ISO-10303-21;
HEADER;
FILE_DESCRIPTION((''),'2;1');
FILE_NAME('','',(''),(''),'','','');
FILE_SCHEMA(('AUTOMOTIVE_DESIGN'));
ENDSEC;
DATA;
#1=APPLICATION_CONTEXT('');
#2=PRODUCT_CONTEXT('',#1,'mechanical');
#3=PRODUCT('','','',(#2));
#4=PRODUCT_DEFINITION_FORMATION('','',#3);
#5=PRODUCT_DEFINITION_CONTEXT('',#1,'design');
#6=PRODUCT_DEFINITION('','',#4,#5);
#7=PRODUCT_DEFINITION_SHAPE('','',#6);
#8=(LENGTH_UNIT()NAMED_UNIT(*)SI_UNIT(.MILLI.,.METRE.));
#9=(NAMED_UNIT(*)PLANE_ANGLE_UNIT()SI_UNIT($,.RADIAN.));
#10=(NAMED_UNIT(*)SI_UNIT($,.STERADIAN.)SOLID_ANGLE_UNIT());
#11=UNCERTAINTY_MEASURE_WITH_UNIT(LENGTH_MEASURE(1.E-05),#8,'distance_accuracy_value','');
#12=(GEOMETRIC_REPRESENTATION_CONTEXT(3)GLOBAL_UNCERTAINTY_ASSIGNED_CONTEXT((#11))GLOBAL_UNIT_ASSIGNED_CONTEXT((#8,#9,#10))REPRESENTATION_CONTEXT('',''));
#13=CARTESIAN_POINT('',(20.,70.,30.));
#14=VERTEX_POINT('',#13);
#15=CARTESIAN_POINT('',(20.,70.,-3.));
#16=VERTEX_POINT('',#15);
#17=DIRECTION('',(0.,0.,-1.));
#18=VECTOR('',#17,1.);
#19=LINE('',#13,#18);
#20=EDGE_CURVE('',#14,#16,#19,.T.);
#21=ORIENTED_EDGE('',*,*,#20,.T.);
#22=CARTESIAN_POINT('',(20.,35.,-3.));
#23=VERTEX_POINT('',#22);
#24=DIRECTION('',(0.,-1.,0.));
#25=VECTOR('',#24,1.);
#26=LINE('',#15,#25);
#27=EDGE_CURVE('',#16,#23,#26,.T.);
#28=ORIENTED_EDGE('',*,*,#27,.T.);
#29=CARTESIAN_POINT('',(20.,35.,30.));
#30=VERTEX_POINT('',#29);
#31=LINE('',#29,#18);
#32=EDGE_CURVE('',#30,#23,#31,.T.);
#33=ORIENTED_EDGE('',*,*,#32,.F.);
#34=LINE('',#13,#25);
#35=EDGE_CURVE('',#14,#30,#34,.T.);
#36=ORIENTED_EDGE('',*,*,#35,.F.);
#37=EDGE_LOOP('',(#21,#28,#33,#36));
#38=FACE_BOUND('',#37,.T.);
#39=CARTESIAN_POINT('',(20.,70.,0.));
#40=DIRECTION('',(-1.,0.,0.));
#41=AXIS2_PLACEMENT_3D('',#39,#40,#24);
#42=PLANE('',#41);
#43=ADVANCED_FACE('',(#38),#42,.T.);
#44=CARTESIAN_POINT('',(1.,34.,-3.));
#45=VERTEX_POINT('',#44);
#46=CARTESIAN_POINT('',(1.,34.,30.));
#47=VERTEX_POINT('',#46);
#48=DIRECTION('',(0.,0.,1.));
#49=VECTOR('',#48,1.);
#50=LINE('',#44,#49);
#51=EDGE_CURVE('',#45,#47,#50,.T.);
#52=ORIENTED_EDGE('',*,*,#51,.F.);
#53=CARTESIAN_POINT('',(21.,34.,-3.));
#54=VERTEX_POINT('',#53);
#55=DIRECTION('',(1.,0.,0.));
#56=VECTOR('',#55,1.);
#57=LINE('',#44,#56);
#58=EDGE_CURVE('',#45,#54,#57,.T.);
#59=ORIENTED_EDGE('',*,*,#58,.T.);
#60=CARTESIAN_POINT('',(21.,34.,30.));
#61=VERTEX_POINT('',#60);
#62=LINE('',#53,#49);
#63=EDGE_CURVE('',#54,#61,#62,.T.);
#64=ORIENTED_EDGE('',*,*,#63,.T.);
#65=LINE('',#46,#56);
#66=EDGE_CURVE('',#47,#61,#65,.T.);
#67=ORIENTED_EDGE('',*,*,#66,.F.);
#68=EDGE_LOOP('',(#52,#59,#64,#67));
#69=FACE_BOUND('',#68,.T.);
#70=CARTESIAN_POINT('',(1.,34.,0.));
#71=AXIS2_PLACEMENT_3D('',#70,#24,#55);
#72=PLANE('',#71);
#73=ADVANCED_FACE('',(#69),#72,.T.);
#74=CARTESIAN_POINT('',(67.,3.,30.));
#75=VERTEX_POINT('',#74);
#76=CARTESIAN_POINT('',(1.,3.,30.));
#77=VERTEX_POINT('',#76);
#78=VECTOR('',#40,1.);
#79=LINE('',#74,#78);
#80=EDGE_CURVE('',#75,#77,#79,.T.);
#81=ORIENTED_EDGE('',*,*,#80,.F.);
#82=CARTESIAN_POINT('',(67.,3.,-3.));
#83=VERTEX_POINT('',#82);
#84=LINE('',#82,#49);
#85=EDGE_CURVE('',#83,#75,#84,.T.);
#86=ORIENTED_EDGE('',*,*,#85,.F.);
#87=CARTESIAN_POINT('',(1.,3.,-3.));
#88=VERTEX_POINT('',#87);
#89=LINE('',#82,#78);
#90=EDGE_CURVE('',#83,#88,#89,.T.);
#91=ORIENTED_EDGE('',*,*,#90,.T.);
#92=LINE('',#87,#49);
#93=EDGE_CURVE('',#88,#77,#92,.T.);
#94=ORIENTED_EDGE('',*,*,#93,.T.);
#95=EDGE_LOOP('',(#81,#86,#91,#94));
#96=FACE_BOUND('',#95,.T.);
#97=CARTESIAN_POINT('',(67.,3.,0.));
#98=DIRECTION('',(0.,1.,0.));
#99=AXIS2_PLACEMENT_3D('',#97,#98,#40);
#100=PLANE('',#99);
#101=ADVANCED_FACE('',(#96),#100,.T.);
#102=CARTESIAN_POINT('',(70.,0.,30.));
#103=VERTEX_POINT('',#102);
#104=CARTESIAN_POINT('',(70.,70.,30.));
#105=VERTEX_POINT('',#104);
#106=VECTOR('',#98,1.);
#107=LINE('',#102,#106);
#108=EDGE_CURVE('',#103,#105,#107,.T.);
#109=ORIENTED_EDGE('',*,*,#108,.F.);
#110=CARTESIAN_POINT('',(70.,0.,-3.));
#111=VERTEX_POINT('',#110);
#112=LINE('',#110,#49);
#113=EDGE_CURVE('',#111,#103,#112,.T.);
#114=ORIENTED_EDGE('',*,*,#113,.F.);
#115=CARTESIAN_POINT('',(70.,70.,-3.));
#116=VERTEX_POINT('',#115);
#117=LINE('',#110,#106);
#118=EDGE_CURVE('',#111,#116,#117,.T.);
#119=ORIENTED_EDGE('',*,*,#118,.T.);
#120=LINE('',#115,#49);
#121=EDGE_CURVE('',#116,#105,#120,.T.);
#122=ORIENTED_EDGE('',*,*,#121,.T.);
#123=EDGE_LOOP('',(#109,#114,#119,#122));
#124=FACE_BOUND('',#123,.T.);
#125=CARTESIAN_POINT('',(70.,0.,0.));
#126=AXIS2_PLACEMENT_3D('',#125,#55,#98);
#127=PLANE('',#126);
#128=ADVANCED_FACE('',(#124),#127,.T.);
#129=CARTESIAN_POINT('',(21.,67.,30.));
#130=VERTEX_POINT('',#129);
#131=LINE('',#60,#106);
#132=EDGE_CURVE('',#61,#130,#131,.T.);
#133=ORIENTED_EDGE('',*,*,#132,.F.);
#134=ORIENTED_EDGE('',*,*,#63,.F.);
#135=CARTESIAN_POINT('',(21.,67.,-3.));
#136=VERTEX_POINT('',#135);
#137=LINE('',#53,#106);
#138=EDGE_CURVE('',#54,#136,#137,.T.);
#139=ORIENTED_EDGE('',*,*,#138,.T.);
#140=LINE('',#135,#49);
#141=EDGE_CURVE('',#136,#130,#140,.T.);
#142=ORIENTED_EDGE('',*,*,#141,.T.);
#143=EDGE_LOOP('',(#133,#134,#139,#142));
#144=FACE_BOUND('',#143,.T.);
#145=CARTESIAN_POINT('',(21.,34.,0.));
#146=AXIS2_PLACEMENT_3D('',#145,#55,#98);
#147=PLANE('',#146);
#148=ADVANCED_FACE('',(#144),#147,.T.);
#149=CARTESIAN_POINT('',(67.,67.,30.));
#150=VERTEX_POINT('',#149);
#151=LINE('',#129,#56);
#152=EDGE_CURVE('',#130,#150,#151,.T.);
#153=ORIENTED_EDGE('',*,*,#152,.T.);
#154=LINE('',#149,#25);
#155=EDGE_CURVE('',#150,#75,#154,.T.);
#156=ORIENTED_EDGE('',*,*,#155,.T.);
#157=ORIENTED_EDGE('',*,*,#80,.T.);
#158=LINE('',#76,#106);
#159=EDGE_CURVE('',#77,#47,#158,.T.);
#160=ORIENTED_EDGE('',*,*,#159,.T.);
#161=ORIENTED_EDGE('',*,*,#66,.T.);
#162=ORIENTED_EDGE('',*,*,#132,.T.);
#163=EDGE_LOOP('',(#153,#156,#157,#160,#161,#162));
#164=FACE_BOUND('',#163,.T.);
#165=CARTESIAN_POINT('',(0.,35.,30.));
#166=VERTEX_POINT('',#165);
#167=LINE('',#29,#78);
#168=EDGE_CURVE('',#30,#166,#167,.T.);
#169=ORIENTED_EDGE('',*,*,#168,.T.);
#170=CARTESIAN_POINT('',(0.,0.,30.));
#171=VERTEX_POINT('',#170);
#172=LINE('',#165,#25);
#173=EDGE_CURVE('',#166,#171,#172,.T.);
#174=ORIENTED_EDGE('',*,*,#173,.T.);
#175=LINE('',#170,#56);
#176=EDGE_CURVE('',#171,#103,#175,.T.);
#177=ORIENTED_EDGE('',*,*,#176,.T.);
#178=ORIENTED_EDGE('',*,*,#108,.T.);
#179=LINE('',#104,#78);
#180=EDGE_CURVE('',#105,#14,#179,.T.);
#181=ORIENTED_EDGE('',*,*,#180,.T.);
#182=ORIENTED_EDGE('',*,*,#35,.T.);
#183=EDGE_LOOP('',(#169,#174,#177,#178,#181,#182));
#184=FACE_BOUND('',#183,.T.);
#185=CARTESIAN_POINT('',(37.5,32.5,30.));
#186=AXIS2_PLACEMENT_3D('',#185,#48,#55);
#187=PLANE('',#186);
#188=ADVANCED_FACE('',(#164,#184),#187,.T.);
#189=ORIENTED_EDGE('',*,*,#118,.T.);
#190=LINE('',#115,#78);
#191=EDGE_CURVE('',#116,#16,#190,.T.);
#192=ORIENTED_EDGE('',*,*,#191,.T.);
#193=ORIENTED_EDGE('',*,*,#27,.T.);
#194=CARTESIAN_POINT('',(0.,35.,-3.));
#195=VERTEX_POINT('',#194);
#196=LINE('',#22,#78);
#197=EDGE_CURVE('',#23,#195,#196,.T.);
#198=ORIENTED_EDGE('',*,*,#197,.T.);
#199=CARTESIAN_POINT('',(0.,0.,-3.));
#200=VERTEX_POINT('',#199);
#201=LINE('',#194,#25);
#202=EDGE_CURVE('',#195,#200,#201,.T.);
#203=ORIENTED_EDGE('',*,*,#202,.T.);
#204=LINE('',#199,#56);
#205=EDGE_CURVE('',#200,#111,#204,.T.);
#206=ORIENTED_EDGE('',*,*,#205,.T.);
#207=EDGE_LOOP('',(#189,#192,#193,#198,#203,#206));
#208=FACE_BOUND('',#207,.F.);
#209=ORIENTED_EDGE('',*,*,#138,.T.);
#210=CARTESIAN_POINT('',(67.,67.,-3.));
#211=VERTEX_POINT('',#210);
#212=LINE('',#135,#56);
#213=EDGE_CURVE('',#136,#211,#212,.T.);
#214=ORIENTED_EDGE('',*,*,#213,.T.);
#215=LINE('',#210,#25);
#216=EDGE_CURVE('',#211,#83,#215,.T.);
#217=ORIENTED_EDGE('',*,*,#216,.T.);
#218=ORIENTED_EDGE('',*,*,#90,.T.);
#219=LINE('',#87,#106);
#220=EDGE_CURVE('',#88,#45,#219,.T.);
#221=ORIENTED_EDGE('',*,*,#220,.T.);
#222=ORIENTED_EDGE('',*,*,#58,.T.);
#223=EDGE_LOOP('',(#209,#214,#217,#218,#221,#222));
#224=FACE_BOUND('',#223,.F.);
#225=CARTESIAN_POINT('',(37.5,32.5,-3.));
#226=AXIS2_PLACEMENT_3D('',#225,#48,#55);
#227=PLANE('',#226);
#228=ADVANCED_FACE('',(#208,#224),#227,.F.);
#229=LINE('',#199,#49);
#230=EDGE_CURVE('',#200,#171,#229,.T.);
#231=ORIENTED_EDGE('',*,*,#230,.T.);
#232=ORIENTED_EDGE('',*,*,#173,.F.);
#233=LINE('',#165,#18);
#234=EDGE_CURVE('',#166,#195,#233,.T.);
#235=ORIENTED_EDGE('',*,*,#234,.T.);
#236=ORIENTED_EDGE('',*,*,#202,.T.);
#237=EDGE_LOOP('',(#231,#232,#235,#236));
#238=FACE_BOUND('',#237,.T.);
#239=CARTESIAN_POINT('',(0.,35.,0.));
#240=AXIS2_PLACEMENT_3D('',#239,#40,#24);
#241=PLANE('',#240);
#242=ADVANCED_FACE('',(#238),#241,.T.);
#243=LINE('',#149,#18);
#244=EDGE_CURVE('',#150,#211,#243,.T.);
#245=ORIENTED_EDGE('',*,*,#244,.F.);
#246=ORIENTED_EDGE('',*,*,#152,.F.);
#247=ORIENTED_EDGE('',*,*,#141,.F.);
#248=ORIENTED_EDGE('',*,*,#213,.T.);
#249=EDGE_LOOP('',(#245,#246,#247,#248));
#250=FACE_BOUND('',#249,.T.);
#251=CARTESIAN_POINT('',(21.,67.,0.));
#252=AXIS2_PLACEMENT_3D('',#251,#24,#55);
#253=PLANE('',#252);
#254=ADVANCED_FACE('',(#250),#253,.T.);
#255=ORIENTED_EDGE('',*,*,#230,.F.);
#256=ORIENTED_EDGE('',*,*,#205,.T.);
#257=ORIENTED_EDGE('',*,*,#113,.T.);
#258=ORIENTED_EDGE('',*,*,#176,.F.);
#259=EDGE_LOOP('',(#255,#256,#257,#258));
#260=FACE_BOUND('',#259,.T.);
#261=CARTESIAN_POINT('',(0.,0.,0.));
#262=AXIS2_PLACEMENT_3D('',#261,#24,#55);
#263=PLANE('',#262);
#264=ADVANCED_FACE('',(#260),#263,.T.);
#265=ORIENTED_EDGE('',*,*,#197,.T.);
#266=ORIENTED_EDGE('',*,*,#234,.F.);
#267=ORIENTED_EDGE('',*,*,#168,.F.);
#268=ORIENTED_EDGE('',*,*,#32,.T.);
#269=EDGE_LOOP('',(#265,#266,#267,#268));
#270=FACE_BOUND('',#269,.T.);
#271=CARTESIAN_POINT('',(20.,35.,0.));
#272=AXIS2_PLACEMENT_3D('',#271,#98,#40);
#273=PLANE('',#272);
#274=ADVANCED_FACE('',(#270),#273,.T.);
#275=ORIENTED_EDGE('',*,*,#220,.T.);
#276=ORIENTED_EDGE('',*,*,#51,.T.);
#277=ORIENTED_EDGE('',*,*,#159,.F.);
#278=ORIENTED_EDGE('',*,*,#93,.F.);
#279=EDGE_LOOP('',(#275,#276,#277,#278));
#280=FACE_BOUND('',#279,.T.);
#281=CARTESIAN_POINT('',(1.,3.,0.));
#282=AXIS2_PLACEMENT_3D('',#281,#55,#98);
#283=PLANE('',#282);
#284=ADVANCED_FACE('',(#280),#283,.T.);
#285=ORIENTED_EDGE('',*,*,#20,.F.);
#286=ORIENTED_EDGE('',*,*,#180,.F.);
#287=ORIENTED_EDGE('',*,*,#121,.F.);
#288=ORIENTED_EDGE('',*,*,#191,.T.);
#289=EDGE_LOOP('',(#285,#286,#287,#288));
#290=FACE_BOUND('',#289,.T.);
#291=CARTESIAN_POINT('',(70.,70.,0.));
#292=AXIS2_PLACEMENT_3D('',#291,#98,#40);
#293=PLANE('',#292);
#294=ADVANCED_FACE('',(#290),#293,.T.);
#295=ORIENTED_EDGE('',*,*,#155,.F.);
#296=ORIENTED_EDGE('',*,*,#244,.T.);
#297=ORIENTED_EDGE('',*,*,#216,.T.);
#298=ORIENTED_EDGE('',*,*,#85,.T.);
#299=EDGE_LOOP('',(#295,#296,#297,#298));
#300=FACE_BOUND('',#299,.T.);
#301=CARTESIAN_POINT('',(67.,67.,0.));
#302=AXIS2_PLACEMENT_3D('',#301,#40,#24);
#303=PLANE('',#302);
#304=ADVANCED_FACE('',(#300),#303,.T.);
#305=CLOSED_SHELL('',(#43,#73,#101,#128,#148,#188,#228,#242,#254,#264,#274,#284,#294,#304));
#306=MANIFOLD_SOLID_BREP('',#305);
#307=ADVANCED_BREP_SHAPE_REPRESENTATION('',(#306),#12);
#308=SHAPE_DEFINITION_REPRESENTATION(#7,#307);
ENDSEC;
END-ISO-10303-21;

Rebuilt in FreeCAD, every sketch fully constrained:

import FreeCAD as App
import Part
import Sketcher

V = App.Vector
Q = App.Units.Quantity


def add_polygon(sketch, points):
    """Adds a closed chain of lines whose ends are joined by coincident constraints."""
    first, n = sketch.GeometryCount, len(points)
    for a, b in zip(points, points[1:] + points[:1]):
        sketch.addGeometry(Part.LineSegment(App.Vector(*a, 0), App.Vector(*b, 0)), False)
    for i in range(n):
        sketch.addConstraint(Sketcher.Constraint("Coincident", first + i, 2, first + (i + 1) % n, 1))

doc = App.newDocument("Part")
body = doc.addObject("PartDesign::Body", "Body")

sketch1 = body.newObject("Sketcher::SketchObject", "Sketch")
sketch1.AttachmentSupport = (doc.getObject("XY_Plane"), [""])
sketch1.MapMode = "FlatFace"
add_polygon(sketch1, [(0, 35), (0, 0), (70, 0), (70, 70), (20, 70), (20, 35)])
add_polygon(sketch1, [(67, 67), (67, 3), (1, 3), (1, 34), (21, 34), (21, 67)])
sketch1.addConstraint([
    Sketcher.Constraint("Vertical", 0),
    Sketcher.Constraint("Horizontal", 1),
    Sketcher.Constraint("Vertical", 2),
    Sketcher.Constraint("Horizontal", 3),
    Sketcher.Constraint("Vertical", 4),
    Sketcher.Constraint("Horizontal", 5),
    Sketcher.Constraint("Vertical", 6),
    Sketcher.Constraint("Horizontal", 7),
    Sketcher.Constraint("Vertical", 8),
    Sketcher.Constraint("Horizontal", 9),
    Sketcher.Constraint("Vertical", 10),
    Sketcher.Constraint("Horizontal", 11),
    Sketcher.Constraint("Coincident", 0, 2, -1, 1),
    Sketcher.Constraint("Equal", 5, 9),
    Sketcher.Constraint("Equal", 1, 2),
    Sketcher.Constraint("Equal", 0, 4),
    Sketcher.Constraint("DistanceX", 1, 1, 1, 2, Q("70 mm")),
    Sketcher.Constraint("DistanceX", 3, 2, 3, 1, Q("50 mm")),
    Sketcher.Constraint("DistanceX", 7, 2, 7, 1, Q("66 mm")),
    Sketcher.Constraint("DistanceY", 6, 2, 6, 1, Q("64 mm")),
    Sketcher.Constraint("DistanceY", 8, 1, 8, 2, Q("31 mm")),
    Sketcher.Constraint("DistanceX", -1, 1, 6, 2, Q("67 mm")),
    Sketcher.Constraint("DistanceY", -1, 1, 6, 2, Q("3 mm")),
])
pad1 = body.newObject("PartDesign::Pad", "Pad")
pad1.Profile = sketch1
pad1.Type = "TwoLengths"
pad1.Length = 30
pad1.Length2 = 3

doc.recompute()
